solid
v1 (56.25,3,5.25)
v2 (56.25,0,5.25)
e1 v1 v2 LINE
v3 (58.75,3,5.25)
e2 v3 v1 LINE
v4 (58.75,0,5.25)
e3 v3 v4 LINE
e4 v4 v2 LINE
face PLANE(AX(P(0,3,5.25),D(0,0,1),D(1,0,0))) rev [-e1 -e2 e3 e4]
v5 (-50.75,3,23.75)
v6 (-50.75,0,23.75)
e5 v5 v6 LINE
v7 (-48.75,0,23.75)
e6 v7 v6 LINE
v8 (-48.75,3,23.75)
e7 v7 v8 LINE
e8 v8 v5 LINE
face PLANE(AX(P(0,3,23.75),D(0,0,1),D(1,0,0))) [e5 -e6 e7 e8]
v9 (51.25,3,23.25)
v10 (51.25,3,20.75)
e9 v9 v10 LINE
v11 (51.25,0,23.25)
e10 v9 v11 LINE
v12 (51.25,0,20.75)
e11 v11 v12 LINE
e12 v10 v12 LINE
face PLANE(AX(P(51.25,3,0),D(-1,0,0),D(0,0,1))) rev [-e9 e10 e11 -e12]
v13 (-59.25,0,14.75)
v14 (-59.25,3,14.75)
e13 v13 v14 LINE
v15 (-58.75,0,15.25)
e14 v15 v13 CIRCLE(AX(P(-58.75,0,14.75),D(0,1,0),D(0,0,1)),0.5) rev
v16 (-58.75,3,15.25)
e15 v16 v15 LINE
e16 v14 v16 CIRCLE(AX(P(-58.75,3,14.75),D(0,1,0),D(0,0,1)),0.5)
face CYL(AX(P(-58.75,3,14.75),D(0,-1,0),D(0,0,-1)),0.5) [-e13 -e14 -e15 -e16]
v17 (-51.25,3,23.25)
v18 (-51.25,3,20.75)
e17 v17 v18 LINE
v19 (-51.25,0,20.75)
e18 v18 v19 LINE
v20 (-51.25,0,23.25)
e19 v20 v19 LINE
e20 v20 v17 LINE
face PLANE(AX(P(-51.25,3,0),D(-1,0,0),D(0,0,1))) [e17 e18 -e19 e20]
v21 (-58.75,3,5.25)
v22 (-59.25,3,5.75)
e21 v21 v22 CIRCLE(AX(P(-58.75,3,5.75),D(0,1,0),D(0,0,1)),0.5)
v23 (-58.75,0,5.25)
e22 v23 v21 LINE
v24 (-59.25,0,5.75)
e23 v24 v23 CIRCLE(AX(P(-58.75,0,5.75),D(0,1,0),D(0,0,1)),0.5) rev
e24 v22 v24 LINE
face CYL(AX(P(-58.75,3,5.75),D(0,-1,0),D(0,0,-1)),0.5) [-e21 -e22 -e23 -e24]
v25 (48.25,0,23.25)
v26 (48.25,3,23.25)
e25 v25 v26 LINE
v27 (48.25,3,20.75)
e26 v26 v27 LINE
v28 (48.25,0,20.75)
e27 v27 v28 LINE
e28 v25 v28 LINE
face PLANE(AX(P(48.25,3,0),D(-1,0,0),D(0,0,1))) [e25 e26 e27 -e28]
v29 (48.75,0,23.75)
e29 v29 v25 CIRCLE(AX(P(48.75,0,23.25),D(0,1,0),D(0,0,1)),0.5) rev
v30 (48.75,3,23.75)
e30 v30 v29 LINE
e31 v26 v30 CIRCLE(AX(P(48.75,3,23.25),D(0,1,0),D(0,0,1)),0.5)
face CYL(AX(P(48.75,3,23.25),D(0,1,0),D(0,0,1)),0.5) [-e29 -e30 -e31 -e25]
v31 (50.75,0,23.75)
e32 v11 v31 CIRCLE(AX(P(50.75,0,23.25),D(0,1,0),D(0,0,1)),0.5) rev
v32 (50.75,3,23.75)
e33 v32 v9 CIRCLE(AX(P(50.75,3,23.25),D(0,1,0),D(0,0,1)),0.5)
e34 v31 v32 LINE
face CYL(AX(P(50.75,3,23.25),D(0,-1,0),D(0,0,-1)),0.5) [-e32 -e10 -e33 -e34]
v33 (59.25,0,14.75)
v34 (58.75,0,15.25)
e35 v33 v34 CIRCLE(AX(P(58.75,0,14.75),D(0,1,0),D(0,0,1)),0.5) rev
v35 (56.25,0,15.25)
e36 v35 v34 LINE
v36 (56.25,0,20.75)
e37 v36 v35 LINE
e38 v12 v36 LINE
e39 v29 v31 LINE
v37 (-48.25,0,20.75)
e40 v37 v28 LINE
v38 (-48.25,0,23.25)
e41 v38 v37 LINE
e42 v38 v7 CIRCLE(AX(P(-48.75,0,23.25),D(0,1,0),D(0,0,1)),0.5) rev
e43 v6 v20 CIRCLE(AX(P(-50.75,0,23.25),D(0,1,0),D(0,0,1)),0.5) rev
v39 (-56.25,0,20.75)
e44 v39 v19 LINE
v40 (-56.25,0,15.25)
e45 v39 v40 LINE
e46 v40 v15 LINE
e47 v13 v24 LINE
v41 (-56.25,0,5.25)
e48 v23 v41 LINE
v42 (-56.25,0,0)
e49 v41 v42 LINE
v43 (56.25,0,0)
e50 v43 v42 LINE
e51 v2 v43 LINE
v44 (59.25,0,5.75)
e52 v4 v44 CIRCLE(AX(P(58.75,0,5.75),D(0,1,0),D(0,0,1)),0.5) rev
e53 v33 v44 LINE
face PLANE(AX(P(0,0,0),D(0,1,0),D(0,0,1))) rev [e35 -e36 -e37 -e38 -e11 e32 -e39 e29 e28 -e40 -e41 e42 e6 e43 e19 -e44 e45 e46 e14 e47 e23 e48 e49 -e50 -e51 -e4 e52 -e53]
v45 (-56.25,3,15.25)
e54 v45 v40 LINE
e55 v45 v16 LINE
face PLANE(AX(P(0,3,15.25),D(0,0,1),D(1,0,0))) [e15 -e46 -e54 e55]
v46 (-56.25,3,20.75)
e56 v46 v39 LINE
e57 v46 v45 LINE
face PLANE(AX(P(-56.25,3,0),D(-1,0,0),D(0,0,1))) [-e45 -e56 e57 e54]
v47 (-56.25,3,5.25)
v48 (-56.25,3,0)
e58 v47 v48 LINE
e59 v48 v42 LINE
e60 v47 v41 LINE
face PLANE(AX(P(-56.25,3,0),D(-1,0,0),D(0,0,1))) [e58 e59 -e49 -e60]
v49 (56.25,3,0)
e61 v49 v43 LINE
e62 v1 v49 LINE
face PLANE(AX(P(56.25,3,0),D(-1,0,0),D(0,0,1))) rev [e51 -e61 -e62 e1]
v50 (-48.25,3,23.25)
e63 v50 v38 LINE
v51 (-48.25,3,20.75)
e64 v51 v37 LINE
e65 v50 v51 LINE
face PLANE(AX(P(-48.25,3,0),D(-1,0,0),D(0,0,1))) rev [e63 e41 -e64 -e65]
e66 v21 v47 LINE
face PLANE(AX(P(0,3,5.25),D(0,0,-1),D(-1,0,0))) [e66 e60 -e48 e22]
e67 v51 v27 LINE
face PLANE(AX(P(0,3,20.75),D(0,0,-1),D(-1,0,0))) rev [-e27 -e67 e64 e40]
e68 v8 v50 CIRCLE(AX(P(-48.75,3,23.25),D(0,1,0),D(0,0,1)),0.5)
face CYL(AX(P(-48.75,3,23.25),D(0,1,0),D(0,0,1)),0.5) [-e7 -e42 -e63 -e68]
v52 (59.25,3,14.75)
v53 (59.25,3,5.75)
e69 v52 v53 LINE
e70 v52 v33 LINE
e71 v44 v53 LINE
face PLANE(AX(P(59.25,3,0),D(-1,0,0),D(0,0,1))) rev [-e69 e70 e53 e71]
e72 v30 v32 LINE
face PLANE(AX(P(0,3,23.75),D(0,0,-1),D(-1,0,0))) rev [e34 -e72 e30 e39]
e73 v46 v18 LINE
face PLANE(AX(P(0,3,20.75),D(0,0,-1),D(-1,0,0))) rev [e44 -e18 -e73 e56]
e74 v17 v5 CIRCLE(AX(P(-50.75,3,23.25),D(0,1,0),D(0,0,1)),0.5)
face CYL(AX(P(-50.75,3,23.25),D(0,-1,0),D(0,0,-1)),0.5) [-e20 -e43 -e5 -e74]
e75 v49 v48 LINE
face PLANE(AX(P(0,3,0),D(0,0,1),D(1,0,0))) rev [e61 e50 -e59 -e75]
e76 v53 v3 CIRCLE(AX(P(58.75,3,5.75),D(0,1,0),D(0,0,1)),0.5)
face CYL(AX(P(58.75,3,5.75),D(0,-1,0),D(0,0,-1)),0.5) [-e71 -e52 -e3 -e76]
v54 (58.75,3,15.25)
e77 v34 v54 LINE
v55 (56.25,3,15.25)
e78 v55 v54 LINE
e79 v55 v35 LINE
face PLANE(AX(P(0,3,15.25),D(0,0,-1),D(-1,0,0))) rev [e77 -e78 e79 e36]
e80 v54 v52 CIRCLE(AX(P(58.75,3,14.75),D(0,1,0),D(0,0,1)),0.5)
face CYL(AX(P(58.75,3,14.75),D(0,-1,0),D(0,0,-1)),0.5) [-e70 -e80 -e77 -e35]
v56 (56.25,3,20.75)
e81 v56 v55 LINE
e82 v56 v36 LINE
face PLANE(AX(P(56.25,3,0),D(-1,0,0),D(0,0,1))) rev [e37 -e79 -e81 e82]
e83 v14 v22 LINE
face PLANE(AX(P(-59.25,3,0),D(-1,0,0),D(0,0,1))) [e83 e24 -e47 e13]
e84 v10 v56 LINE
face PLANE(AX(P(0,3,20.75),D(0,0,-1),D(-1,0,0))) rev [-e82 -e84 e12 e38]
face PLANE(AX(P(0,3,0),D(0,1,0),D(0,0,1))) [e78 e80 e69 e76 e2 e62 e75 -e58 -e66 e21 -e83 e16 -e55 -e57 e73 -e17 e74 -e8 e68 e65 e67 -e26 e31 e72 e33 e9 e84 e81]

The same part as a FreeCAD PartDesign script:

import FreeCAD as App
import Part
import Sketcher

V = App.Vector


def edges_at(feature, points):
    """Names of the edges that pass closest to the given points."""
    edges = feature.Shape.Edges
    near = lambda p: min(range(len(edges)), key=lambda i: edges[i].distToShape(Part.Vertex(*p))[0])
    return sorted({f"Edge{near(p) + 1}" for p in points})


def add_polygon(sketch, points):
    """Adds a closed chain of lines whose ends are joined by coincident constraints."""
    first, n = sketch.GeometryCount, len(points)
    for a, b in zip(points, points[1:] + points[:1]):
        sketch.addGeometry(Part.LineSegment(App.Vector(*a, 0), App.Vector(*b, 0)), False)
    for i in range(n):
        sketch.addConstraint(Sketcher.Constraint("Coincident", first + i, 2, first + (i + 1) % n, 1))

doc = App.newDocument("Part")
params = doc.addObject("Spreadsheet::Sheet", "Params")
for row, (alias, value) in enumerate([
    ("sketch1_width", "5 mm"),
    ("sketch1_width2", "3 mm"),
    ("sketch1_height", "10 mm"),
    ("sketch1_width3", "96.5 mm"),
    ("sketch1_height2", "5.5 mm"),
    ("pad1_length", "3 mm"),
    ("fillet_radius", "0.5 mm"),
], start=1):
    params.set(f"A{row}", alias)
    params.set(f"B{row}", "=" + value)
    params.setAlias(f"B{row}", alias)

body = doc.addObject("PartDesign::Body", "Body")

sketch1 = doc.addObject("Sketcher::SketchObject", "Sketch")
body.addObject(sketch1)
sketch1.AttachmentSupport = (doc.XZ_Plane, [""])
sketch1.MapMode = "FlatFace"
add_polygon(sketch1, [(-56.2, 20.8), (-51.2, 20.8), (-51.2, 23.8), (-48.2, 23.8), (-48.2, 20.8), (48.2, 20.8), (48.2, 23.8), (51.2, 23.8), (51.2, 20.8), (56.2, 20.8), (56.2, 15.2), (59.2, 15.2), (59.2, 5.2), (56.2, 5.2), (56.2, 0), (-56.2, 0), (-56.2, 5.2), (-59.2, 5.2), (-59.2, 15.2), (-56.2, 15.2)])
sketch1.addConstraint(Sketcher.Constraint("Horizontal", 0))
sketch1.addConstraint(Sketcher.Constraint("Vertical", 1))
sketch1.addConstraint(Sketcher.Constraint("Horizontal", 2))
sketch1.addConstraint(Sketcher.Constraint("Vertical", 3))
sketch1.addConstraint(Sketcher.Constraint("Horizontal", 4))
sketch1.addConstraint(Sketcher.Constraint("Vertical", 5))
sketch1.addConstraint(Sketcher.Constraint("Horizontal", 6))
sketch1.addConstraint(Sketcher.Constraint("Vertical", 7))
sketch1.addConstraint(Sketcher.Constraint("Horizontal", 8))
sketch1.addConstraint(Sketcher.Constraint("Vertical", 9))
sketch1.addConstraint(Sketcher.Constraint("Horizontal", 10))
sketch1.addConstraint(Sketcher.Constraint("Vertical", 11))
sketch1.addConstraint(Sketcher.Constraint("Horizontal", 12))
sketch1.addConstraint(Sketcher.Constraint("Vertical", 13))
sketch1.addConstraint(Sketcher.Constraint("Horizontal", 14))
sketch1.addConstraint(Sketcher.Constraint("Vertical", 15))
sketch1.addConstraint(Sketcher.Constraint("Horizontal", 16))
sketch1.addConstraint(Sketcher.Constraint("Vertical", 17))
sketch1.addConstraint(Sketcher.Constraint("Horizontal", 18))
sketch1.addConstraint(Sketcher.Constraint("Vertical", 19))
sketch1.addConstraint(Sketcher.Constraint("Symmetric", 13, 2, 14, 2, -1, 1))
sketch1.addConstraint(Sketcher.Constraint("Symmetric", 2, 2, 5, 2, -2))
sketch1.addConstraint(Sketcher.Constraint("Symmetric", 0, 2, 7, 2, -2))
sketch1.addConstraint(Sketcher.Constraint("Symmetric", 11, 2, 16, 2, -2))
sketch1.addConstraint(Sketcher.Constraint("Symmetric", 9, 2, 18, 2, -2))
sketch1.addConstraint(Sketcher.Constraint("Horizontal", 0, 2, 3, 2))
sketch1.addConstraint(Sketcher.Constraint("Vertical", 9, 2, 12, 2))
sketch1.addConstraint(Sketcher.Constraint("Equal", 6, 10))
sketch1.addConstraint(Sketcher.Constraint("Equal", 18, 1))
sketch1.addConstraint(Sketcher.Constraint("DistanceX", 0, 1, 0, 2, 5.0))
sketch1.addConstraint(Sketcher.Constraint("DistanceX", 2, 1, 2, 2, 3.0))
sketch1.addConstraint(Sketcher.Constraint("DistanceY", 11, 2, 11, 1, 10.0))
sketch1.addConstraint(Sketcher.Constraint("DistanceX", 4, 1, 4, 2, 96.5))
sketch1.addConstraint(Sketcher.Constraint("DistanceY", 9, 2, 9, 1, 5.5))
sketch1.addConstraint(Sketcher.Constraint("DistanceY", 13, 2, 13, 1, 5.25))
sketch1.setExpression("Constraints[49]", "Params.sketch1_width")
sketch1.setExpression("Constraints[50]", "Params.sketch1_width2")
sketch1.setExpression("Constraints[51]", "Params.sketch1_height")
sketch1.setExpression("Constraints[52]", "Params.sketch1_width3")
sketch1.setExpression("Constraints[53]", "Params.sketch1_height2")
pad1 = doc.addObject("PartDesign::Pad", "Pad")
body.addObject(pad1)
pad1.Profile = sketch1
pad1.setExpression("Length", "Params.pad1_length")
pad1.Reversed = True
doc.recompute()

fillet = doc.addObject("PartDesign::Fillet", "Fillet")
body.addObject(fillet)
fillet.Base = (pad1, edges_at(pad1, [
    (-59.25, 1.5, 15.25),
    (-59.25, 1.5, 5.25),
    (59.25, 1.5, 5.25),
    (59.25, 1.5, 15.25),
    (51.25, 1.5, 23.75),
    (48.25, 1.5, 23.75),
    (-48.25, 1.5, 23.75),
    (-51.25, 1.5, 23.75),
]))
fillet.setExpression("Radius", "Params.fillet_radius")

doc.recompute()
